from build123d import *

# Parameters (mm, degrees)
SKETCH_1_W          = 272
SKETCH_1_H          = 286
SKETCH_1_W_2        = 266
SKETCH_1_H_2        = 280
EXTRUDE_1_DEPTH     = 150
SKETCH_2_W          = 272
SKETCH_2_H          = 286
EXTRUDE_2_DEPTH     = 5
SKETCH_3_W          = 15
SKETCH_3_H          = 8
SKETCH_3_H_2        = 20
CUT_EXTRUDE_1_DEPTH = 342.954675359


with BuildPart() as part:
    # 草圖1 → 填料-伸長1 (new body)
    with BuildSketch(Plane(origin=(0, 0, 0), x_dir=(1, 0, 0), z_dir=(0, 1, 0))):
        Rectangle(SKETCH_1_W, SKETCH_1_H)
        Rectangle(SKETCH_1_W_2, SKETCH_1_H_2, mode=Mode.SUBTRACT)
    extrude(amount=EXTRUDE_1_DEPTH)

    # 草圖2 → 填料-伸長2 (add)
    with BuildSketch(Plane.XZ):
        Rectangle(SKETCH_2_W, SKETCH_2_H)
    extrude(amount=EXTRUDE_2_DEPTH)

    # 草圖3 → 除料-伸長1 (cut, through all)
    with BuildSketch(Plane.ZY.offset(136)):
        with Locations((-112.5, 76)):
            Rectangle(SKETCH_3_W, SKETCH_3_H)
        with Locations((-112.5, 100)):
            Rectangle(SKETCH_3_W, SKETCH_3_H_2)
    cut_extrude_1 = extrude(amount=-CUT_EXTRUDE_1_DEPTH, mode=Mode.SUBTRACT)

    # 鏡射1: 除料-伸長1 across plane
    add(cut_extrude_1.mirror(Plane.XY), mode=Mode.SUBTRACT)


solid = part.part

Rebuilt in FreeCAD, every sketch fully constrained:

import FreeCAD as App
import Part
import Sketcher

V = App.Vector
Q = App.Units.Quantity


def add_polygon(sketch, points):
    """Adds a closed chain of lines whose ends are joined by coincident constraints."""
    first, n = sketch.GeometryCount, len(points)
    for a, b in zip(points, points[1:] + points[:1]):
        sketch.addGeometry(Part.LineSegment(App.Vector(*a, 0), App.Vector(*b, 0)), False)
    for i in range(n):
        sketch.addConstraint(Sketcher.Constraint("Coincident", first + i, 2, first + (i + 1) % n, 1))

doc = App.newDocument("Part")
body = doc.addObject("PartDesign::Body", "Body")

sketch1 = body.newObject("Sketcher::SketchObject", "Sketch")
sketch1.AttachmentSupport = (doc.getObject("XZ_Plane"), [""])
sketch1.MapMode = "FlatFace"
add_polygon(sketch1, [(-136, -143), (-136, 143), (136, 143), (136, -143)])
add_polygon(sketch1, [(133, 140), (-133, 140), (-133, -140), (133, -140)])
sketch1.addConstraint(Sketcher.Constraint("Vertical", 0))
sketch1.addConstraint(Sketcher.Constraint("Horizontal", 1))
sketch1.addConstraint(Sketcher.Constraint("Vertical", 2))
sketch1.addConstraint(Sketcher.Constraint("Horizontal", 3))
sketch1.addConstraint(Sketcher.Constraint("Horizontal", 4))
sketch1.addConstraint(Sketcher.Constraint("Vertical", 5))
sketch1.addConstraint(Sketcher.Constraint("Horizontal", 6))
sketch1.addConstraint(Sketcher.Constraint("Vertical", 7))
sketch1.addConstraint(Sketcher.Constraint("Symmetric", 0, 2, 2, 2, -1, 1))
sketch1.addConstraint(Sketcher.Constraint("Symmetric", 4, 2, 6, 2, -1, 1))
sketch1.addConstraint(Sketcher.Constraint("DistanceX", 1, 1, 1, 2, Q("272 mm")))
sketch1.addConstraint(Sketcher.Constraint("DistanceX", 4, 2, 4, 1, Q("266 mm")))
sketch1.addConstraint(Sketcher.Constraint("DistanceY", 0, 1, 0, 2, Q("286 mm")))
sketch1.addConstraint(Sketcher.Constraint("DistanceY", 5, 2, 5, 1, Q("280 mm")))
pad1 = body.newObject("PartDesign::Pad", "Pad")
pad1.Profile = sketch1
pad1.Length = 150
pad1.Reversed = True

sketch2 = body.newObject("Sketcher::SketchObject", "Sketch001")
sketch2.AttachmentSupport = (doc.getObject("XZ_Plane"), [""])
sketch2.MapMode = "FlatFace"
add_polygon(sketch2, [(-136, 143), (-136, -143), (136, -143), (136, 143)])
sketch2.addConstraint(Sketcher.Constraint("Vertical", 0))
sketch2.addConstraint(Sketcher.Constraint("Horizontal", 1))
sketch2.addConstraint(Sketcher.Constraint("Vertical", 2))
sketch2.addConstraint(Sketcher.Constraint("Horizontal", 3))
sketch2.addConstraint(Sketcher.Constraint("Symmetric", 0, 2, 2, 2, -1, 1))
sketch2.addConstraint(Sketcher.Constraint("DistanceX", 1, 1, 1, 2, Q("272 mm")))
sketch2.addConstraint(Sketcher.Constraint("DistanceY", 0, 2, 0, 1, Q("286 mm")))
pad2 = body.newObject("PartDesign::Pad", "Pad001")
pad2.Profile = sketch2
pad2.Length = 5

sketch3 = body.newObject("Sketcher::SketchObject", "Sketch002")
sketch3.AttachmentSupport = (doc.getObject("YZ_Plane"), [""])
sketch3.MapMode = "FlatFace"
sketch3.AttachmentOffset = App.Placement(V(0, 0, -136), App.Rotation())
add_polygon(sketch3, [(80, -120), (72, -120), (72, -105), (80, -105)])
add_polygon(sketch3, [(110, -120), (90, -120), (90, -105), (110, -105)])
sketch3.addConstraint(Sketcher.Constraint("Horizontal", 0))
sketch3.addConstraint(Sketcher.Constraint("Vertical", 1))
sketch3.addConstraint(Sketcher.Constraint("Horizontal", 2))
sketch3.addConstraint(Sketcher.Constraint("Vertical", 3))
sketch3.addConstraint(Sketcher.Constraint("Horizontal", 4))
sketch3.addConstraint(Sketcher.Constraint("Vertical", 5))
sketch3.addConstraint(Sketcher.Constraint("Horizontal", 6))
sketch3.addConstraint(Sketcher.Constraint("Vertical", 7))
sketch3.addConstraint(Sketcher.Constraint("Horizontal", 3, 2, 4, 2))
sketch3.addConstraint(Sketcher.Constraint("Horizontal", 2, 2, 5, 2))
sketch3.addConstraint(Sketcher.Constraint("DistanceX", 0, 2, 0, 1, Q("8 mm")))
sketch3.addConstraint(Sketcher.Constraint("DistanceX", 4, 2, 4, 1, Q("20 mm")))
sketch3.addConstraint(Sketcher.Constraint("DistanceY", 1, 1, 1, 2, Q("15 mm")))
sketch3.addConstraint(Sketcher.Constraint("DistanceX", -1, 1, 0, 2, Q("72 mm")))
sketch3.addConstraint(Sketcher.Constraint("DistanceY", 0, 2, -1, 1, Q("120 mm")))
sketch3.addConstraint(Sketcher.Constraint("DistanceX", -1, 1, 4, 2, Q("90 mm")))
pocket1 = body.newObject("PartDesign::Pocket", "Pocket")
pocket1.Profile = sketch3
pocket1.Type = "ThroughAll"
pocket1.Reversed = True
doc.recompute()

mirrored = body.newObject("PartDesign::Mirrored", "Mirrored")
mirrored.Originals = [pocket1]
mirrored.MirrorPlane = (doc.getObject("XY_Plane"), [""])
body.Tip = mirrored

doc.recompute()
